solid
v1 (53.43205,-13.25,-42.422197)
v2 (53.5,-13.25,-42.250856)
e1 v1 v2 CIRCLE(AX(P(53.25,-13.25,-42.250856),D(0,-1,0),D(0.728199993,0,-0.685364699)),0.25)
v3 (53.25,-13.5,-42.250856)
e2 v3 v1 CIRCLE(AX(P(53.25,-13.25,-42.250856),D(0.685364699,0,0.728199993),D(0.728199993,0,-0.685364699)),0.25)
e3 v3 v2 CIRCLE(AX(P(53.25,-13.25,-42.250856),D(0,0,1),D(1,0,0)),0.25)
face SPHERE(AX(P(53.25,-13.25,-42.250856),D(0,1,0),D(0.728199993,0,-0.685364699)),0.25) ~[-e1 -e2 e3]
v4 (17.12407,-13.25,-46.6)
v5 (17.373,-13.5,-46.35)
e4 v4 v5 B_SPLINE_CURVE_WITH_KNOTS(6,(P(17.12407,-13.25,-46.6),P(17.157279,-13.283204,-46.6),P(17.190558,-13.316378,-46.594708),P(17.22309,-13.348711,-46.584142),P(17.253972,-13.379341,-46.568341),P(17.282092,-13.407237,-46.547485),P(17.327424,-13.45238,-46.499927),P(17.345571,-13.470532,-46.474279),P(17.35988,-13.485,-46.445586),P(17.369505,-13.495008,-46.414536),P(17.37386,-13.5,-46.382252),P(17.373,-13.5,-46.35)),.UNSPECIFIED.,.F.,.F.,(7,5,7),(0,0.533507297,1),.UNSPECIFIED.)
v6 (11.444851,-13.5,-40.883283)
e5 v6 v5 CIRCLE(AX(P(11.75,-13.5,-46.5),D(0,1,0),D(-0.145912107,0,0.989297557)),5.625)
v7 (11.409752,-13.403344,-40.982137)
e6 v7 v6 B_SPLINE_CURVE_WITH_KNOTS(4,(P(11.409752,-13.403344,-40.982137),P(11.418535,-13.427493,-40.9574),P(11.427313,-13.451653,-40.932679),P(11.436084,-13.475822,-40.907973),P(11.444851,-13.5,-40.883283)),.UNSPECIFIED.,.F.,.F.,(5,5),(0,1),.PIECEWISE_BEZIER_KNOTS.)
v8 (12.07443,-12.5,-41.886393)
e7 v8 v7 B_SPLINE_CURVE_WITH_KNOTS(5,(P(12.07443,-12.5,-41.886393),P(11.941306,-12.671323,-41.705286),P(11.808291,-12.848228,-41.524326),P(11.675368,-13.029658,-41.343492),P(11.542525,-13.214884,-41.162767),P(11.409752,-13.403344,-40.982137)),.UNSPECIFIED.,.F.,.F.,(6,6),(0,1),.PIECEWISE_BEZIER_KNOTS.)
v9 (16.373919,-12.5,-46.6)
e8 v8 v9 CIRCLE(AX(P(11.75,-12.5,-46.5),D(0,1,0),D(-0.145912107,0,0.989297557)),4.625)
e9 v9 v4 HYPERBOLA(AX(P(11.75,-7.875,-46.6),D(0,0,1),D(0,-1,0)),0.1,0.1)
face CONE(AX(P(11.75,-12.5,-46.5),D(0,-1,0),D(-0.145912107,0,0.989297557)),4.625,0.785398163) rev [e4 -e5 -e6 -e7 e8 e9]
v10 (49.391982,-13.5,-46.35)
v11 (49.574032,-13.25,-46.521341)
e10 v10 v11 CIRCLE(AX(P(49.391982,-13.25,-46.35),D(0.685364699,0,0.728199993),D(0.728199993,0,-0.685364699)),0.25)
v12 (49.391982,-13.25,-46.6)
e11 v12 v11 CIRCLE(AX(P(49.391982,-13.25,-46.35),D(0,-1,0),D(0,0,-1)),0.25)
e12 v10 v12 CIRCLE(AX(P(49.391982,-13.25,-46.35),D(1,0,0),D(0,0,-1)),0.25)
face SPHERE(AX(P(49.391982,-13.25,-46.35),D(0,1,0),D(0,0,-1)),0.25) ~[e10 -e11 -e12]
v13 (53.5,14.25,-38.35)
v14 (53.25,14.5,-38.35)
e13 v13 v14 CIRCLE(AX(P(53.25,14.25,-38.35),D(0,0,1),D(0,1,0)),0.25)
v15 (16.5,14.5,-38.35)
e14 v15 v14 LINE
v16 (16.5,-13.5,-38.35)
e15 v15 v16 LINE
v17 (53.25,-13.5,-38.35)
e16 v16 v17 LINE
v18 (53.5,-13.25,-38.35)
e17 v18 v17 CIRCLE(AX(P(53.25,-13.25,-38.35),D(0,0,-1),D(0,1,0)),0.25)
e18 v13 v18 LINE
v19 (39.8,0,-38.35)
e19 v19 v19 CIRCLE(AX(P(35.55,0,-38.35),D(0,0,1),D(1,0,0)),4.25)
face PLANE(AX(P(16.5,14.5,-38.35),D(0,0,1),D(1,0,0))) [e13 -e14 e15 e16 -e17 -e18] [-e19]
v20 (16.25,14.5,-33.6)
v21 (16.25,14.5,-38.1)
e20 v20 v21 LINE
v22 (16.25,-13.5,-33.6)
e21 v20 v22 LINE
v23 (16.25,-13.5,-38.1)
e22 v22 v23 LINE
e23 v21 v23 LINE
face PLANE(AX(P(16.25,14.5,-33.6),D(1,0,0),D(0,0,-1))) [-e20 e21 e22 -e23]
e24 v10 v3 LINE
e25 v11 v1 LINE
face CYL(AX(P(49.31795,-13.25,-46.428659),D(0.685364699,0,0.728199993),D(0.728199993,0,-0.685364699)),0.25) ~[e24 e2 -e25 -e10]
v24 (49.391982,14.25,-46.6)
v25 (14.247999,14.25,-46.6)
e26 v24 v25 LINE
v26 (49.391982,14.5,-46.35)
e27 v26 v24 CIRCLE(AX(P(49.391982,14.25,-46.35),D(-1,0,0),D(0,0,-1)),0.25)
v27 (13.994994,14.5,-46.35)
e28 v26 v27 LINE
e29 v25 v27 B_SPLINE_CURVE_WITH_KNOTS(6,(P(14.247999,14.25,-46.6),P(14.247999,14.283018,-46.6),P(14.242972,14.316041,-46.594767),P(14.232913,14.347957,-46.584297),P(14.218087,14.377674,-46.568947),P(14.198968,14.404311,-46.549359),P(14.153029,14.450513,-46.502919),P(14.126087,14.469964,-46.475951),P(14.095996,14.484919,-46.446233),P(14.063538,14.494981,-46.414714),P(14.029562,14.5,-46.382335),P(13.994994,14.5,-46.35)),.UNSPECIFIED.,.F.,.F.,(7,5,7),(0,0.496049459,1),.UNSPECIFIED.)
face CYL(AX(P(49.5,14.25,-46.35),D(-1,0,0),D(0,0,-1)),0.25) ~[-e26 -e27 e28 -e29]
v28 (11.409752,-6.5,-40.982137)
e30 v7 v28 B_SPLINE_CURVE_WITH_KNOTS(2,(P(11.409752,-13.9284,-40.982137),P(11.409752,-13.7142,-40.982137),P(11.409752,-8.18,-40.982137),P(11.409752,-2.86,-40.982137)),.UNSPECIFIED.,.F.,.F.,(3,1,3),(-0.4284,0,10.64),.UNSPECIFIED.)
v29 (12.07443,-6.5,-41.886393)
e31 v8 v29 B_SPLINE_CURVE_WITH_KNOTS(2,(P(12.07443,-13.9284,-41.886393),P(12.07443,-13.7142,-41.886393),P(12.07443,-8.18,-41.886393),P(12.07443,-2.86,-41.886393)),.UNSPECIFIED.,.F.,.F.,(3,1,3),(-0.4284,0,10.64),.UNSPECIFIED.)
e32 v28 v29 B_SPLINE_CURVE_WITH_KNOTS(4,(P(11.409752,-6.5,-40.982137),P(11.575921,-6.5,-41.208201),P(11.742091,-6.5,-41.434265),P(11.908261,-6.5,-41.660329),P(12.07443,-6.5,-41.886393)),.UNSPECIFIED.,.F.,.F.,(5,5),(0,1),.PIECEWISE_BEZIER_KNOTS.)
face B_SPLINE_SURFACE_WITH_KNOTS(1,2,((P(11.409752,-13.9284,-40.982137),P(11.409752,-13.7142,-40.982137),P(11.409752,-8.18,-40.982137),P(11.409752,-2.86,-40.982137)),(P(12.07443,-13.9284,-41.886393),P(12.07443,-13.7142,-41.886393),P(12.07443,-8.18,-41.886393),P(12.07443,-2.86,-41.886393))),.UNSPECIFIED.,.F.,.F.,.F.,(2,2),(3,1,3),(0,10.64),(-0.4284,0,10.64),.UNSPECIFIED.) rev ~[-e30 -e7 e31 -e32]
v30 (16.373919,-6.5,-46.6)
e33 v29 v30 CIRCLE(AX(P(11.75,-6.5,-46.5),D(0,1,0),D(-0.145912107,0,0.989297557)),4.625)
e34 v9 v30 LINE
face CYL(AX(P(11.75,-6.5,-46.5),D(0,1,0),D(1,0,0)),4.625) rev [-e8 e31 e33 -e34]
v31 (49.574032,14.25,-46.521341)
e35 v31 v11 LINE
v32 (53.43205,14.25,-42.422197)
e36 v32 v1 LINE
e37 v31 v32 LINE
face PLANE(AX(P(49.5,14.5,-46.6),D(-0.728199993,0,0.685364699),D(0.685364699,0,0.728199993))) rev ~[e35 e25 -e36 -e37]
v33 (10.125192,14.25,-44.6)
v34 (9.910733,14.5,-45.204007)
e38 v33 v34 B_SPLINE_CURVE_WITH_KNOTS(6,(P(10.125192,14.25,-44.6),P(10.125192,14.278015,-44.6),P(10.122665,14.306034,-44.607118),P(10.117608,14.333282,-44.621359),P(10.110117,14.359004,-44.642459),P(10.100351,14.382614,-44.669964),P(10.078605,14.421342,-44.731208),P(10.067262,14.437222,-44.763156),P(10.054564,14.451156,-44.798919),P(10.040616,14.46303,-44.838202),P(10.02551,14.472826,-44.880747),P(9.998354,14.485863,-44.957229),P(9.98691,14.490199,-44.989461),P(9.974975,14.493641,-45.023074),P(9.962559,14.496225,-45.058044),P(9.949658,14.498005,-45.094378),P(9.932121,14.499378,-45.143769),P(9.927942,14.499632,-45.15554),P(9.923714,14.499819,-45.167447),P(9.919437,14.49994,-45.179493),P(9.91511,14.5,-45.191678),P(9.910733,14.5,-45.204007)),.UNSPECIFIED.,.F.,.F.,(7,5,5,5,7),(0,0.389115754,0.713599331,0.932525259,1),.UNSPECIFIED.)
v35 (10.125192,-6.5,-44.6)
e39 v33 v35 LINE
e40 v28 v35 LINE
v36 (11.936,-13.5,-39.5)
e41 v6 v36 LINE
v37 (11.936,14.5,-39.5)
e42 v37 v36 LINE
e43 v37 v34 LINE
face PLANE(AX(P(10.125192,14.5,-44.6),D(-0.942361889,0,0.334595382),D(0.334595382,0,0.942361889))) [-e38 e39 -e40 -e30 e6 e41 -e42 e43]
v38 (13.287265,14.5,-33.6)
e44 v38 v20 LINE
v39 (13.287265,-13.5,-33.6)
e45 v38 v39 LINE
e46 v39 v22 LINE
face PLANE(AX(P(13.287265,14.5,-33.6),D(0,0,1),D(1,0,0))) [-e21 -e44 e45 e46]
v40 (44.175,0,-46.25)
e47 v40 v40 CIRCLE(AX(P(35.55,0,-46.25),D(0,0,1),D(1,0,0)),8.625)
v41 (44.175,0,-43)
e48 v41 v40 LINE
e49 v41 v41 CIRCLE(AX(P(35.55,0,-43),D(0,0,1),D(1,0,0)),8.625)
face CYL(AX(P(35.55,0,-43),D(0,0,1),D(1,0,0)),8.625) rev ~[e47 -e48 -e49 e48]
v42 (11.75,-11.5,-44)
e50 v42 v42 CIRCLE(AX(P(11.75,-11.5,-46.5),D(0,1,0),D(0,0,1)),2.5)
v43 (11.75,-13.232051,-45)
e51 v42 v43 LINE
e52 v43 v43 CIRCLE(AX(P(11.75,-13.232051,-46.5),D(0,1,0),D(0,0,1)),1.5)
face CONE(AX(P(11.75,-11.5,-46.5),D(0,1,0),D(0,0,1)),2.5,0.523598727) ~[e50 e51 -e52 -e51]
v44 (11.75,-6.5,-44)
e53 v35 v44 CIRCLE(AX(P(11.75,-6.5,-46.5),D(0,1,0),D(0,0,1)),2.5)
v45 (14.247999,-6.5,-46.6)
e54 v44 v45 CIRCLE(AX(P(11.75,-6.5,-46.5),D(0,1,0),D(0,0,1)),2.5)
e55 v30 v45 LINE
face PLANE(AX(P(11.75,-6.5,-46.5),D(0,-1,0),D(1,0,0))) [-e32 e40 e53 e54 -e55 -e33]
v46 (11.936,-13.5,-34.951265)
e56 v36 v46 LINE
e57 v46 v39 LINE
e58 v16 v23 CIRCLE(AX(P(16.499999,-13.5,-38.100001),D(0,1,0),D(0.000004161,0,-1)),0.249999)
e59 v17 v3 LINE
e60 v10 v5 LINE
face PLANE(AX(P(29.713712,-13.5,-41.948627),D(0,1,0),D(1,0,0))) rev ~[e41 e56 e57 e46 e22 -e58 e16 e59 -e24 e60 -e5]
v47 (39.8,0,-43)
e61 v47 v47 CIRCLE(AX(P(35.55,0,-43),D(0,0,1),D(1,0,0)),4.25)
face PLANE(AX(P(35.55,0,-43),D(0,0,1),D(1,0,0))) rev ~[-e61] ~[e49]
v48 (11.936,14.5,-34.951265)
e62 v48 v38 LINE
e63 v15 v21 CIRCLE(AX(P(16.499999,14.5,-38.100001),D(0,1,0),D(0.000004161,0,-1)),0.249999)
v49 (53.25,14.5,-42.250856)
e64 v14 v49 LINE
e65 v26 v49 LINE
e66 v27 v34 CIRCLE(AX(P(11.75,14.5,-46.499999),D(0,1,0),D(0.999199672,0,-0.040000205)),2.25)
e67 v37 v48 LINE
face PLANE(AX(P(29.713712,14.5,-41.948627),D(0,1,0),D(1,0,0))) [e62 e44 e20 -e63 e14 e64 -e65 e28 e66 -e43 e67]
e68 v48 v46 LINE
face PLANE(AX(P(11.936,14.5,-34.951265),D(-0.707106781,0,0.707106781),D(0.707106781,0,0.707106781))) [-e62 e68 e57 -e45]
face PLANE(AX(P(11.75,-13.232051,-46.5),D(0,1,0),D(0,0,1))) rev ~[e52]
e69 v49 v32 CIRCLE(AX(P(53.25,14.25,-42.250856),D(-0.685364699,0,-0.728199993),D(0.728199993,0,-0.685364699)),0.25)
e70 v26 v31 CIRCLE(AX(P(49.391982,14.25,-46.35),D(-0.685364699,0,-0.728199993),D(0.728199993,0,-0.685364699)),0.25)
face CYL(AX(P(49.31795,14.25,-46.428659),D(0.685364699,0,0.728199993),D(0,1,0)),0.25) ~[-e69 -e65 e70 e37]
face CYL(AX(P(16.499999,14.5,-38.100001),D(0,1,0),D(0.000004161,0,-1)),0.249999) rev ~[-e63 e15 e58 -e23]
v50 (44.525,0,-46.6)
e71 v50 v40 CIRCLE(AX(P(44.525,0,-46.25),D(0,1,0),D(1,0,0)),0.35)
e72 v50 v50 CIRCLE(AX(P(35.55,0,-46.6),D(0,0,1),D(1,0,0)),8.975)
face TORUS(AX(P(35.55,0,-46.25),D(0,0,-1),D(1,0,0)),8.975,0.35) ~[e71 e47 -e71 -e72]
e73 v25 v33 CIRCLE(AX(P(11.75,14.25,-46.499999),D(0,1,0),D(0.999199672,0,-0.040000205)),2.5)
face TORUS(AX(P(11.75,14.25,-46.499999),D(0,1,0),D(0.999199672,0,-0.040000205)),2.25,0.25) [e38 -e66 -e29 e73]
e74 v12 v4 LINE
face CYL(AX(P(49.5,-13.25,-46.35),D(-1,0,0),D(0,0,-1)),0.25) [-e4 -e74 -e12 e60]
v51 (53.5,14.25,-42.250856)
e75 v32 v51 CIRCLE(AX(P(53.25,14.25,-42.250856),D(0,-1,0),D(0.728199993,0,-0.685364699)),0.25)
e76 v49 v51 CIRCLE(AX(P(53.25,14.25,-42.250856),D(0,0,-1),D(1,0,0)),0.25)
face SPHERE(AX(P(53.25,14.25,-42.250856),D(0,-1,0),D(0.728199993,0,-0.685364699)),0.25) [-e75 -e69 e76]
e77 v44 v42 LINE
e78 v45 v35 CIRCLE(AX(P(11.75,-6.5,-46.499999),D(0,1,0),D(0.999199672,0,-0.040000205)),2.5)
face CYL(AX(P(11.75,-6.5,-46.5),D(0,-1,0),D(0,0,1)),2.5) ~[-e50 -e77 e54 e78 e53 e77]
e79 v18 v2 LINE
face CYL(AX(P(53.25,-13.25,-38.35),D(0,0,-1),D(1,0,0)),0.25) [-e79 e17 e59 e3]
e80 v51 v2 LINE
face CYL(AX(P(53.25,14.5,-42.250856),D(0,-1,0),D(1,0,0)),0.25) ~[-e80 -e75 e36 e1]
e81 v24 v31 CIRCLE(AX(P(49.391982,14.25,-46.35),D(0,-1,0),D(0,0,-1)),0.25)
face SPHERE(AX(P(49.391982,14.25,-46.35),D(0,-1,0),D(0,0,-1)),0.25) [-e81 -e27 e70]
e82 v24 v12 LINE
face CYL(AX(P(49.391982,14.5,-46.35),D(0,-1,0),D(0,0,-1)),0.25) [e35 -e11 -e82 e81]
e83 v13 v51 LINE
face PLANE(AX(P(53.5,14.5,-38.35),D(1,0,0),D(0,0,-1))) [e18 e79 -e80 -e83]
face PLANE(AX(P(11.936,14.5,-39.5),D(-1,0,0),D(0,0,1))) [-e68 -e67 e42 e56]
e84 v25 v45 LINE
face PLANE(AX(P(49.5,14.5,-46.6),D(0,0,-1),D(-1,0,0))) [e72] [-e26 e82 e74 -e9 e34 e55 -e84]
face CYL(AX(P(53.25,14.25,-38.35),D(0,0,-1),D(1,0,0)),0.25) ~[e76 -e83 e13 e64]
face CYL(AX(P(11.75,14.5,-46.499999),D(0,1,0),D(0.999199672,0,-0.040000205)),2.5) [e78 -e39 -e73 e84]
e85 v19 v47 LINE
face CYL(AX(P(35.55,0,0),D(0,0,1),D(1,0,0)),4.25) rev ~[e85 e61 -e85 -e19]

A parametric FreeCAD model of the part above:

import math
import FreeCAD as App
import Part
import Sketcher
Q = App.Units.Quantity


def edges_at(feature, points):
    """Names of the edges that pass closest to the given points."""
    edges = feature.Shape.Edges
    near = lambda p: min(range(len(edges)), key=lambda i: edges[i].distToShape(Part.Vertex(*p))[0])
    return sorted({f"Edge{near(p) + 1}" for p in points})

doc = App.newDocument("Part")
body = doc.addObject("PartDesign::Body", "Body")

# Sketch on XZ plane
sketch1 = doc.addObject("Sketcher::SketchObject", "Sketch")
body.addObject(sketch1)
sketch1.AttachmentSupport = (doc.XZ_Plane, [""])
sketch1.MapMode = "FlatFace"
sketch1.AttachmentOffset = App.Placement(App.Vector(0, 0, -14.5), App.Rotation())
sketch1.addGeometry([
    Part.LineSegment(App.Vector(16.5, -38.35, 0), App.Vector(53.5, -38.35, 0)),  # 0
    Part.LineSegment(App.Vector(53.5, -38.35, 0), App.Vector(53.5, -42.35, 0)),  # 1
    Part.LineSegment(App.Vector(53.5, -42.35, 0), App.Vector(49.5, -46.6, 0)),  # 2
    Part.LineSegment(App.Vector(49.5, -46.6, 0), App.Vector(14.25, -46.6, 0)),  # 3
    Part.ArcOfCircle(Part.Circle(App.Vector(11.75, -46.5, 0), App.Vector(0, 0, 1), 2.5), math.radians(131), math.radians(358)),  # 4
    Part.LineSegment(App.Vector(10.13, -44.6, 0), App.Vector(11.94, -39.5, 0)),  # 5
    Part.LineSegment(App.Vector(11.94, -39.5, 0), App.Vector(11.94, -34.95, 0)),  # 6
    Part.LineSegment(App.Vector(11.94, -34.95, 0), App.Vector(13.29, -33.6, 0)),  # 7
    Part.LineSegment(App.Vector(13.29, -33.6, 0), App.Vector(16.25, -33.6, 0)),  # 8
    Part.LineSegment(App.Vector(16.25, -33.6, 0), App.Vector(16.25, -38.1, 0)),  # 9
    Part.ArcOfCircle(Part.Circle(App.Vector(16.5, -38.1, 0), App.Vector(0, 0, 1), 0.25), math.radians(180), math.radians(270)),  # 10
], False)
sketch1.addConstraint([
    Sketcher.Constraint("Coincident", 0, 2, 1, 1),
    Sketcher.Constraint("Coincident", 1, 2, 2, 1),
    Sketcher.Constraint("Coincident", 2, 2, 3, 1),
    Sketcher.Constraint("Coincident", 3, 2, 4, 2),
    Sketcher.Constraint("Coincident", 4, 1, 5, 1),
    Sketcher.Constraint("Coincident", 5, 2, 6, 1),
    Sketcher.Constraint("Coincident", 6, 2, 7, 1),
    Sketcher.Constraint("Coincident", 7, 2, 8, 1),
    Sketcher.Constraint("Coincident", 8, 2, 9, 1),
    Sketcher.Constraint("Coincident", 9, 2, 10, 1),
    Sketcher.Constraint("Coincident", 10, 2, 0, 1),
    Sketcher.Constraint("Horizontal", 0),
    Sketcher.Constraint("Vertical", 1),
    Sketcher.Constraint("Horizontal", 3),
    Sketcher.Constraint("Vertical", 6),
    Sketcher.Constraint("Horizontal", 8),
    Sketcher.Constraint("Vertical", 9),
    Sketcher.Constraint("Horizontal", 10, 3, 9, 2),
    Sketcher.Constraint("Radius", 4, Q("2.5 mm")),
    Sketcher.Constraint("DistanceX", 0, 1, 0, 2, Q("37 mm")),
    Sketcher.Constraint("DistanceY", 1, 2, 1, 1, Q("4 mm")),
    Sketcher.Constraint("Angle", 7, Q("45 deg")),
    Sketcher.Constraint("Radius", 10, Q("0.249999 mm")),
    Sketcher.Constraint("DistanceY", 9, 2, 9, 1, Q("4.5 mm")),
    Sketcher.Constraint("DistanceX", 10, 3, 0, 2, Q("37.000001 mm")),
    Sketcher.Constraint("DistanceX", 2, 2, 1, 2, Q("4 mm")),
    Sketcher.Constraint("DistanceY", 3, 2, 4, 1, Q("2 mm")),
    Sketcher.Constraint("DistanceY", 4, 3, 5, 2, Q("6.999999 mm")),
    Sketcher.Constraint("DistanceY", 4, 1, 7, 2, Q("11 mm")),
    Sketcher.Constraint("DistanceY", 4, 3, -1, 1, Q("46.499999 mm")),
    Sketcher.Constraint("DistanceX", -1, 1, 10, 3, Q("16.499999 mm")),
    Sketcher.Constraint("DistanceY", 10, 3, -1, 1, Q("38.100001 mm")),
    Sketcher.Constraint("DistanceX", 3, 2, 3, 1, Q("35.252001 mm")),
    Sketcher.Constraint("DistanceX", -1, 1, 5, 2, Q("11.936 mm")),
    Sketcher.Constraint("DistanceX", 8, 1, 8, 2, Q("2.962735 mm")),
])
pad1 = doc.addObject("PartDesign::Pad", "Pad")
body.addObject(pad1)
pad1.Profile = sketch1
pad1.Length = 28

# Sketch on XZ plane
sketch2 = doc.addObject("Sketcher::SketchObject", "Sketch001")
body.addObject(sketch2)
sketch2.AttachmentSupport = (doc.XZ_Plane, [""])
sketch2.MapMode = "FlatFace"
sketch2.AttachmentOffset = App.Placement(App.Vector(0, 0, 6.5), App.Rotation())
sketch2.addGeometry(Part.Circle(App.Vector(11.8, -46.5, 0), App.Vector(0, 0, 1), 4.6), False)
sketch2.addConstraint([
    Sketcher.Constraint("Diameter", 0, Q("9.25 mm")),
    Sketcher.Constraint("DistanceY", 0, 3, -1, 1, Q("46.5 mm")),
    Sketcher.Constraint("DistanceX", -1, 1, 0, 3, Q("11.75 mm")),
])
pocket1 = doc.addObject("PartDesign::Pocket", "Pocket")
body.addObject(pocket1)
pocket1.Profile = sketch2
pocket1.Length = 7
pocket1.Reversed = True

# Sketch on YZ plane
sketch3 = doc.addObject("Sketcher::SketchObject", "Sketch002")
body.addObject(sketch3)
sketch3.AttachmentSupport = (doc.YZ_Plane, [""])
sketch3.MapMode = "FlatFace"
sketch3.AttachmentOffset = App.Placement(App.Vector(0, 0, 11.75), App.Rotation())
sketch3.addGeometry([
    Part.LineSegment(App.Vector(-13.2, -45, 0), App.Vector(-13.2, -46.5, 0)),  # 0
    Part.LineSegment(App.Vector(-13.2, -46.5, 0), App.Vector(-6.5, -46.5, 0)),  # 1
    Part.LineSegment(App.Vector(-6.5, -46.5, 0), App.Vector(-6.5, -44, 0)),  # 2
    Part.LineSegment(App.Vector(-6.5, -44, 0), App.Vector(-11.5, -44, 0)),  # 3
    Part.LineSegment(App.Vector(-11.5, -44, 0), App.Vector(-13.2, -45, 0)),  # 4
], False)
sketch3.addGeometry(Part.LineSegment(App.Vector(-13.2, -46.5, 0), App.Vector(-6.5, -46.5, 0)), True)  # axis
sketch3.addConstraint([
    Sketcher.Constraint("Coincident", 0, 2, 1, 1),
    Sketcher.Constraint("Coincident", 1, 2, 2, 1),
    Sketcher.Constraint("Coincident", 2, 2, 3, 1),
    Sketcher.Constraint("Coincident", 3, 2, 4, 1),
    Sketcher.Constraint("Coincident", 4, 2, 0, 1),
    Sketcher.Constraint("Vertical", 0),
    Sketcher.Constraint("Horizontal", 1),
    Sketcher.Constraint("Vertical", 2),
    Sketcher.Constraint("Horizontal", 3),
    Sketcher.Constraint("Horizontal", 5),
    Sketcher.Constraint("Coincident", 5, 1, 0, 2),
    Sketcher.Constraint("Vertical", 2, 2, 5, 2),
    Sketcher.Constraint("DistanceX", 3, 2, 3, 1, Q("5 mm")),
    Sketcher.Constraint("Angle", 4, Q("-150.000003 deg")),
    Sketcher.Constraint("Distance", 4, Q("2 mm")),
    Sketcher.Constraint("DistanceY", 0, 2, 0, 1, Q("1.5 mm")),
    Sketcher.Constraint("DistanceY", 2, 2, -1, 1, Q("44 mm")),
    Sketcher.Constraint("DistanceX", 1, 2, -1, 1, Q("6.5 mm")),
])
revolution = doc.addObject("PartDesign::Revolution", "Revolution")
body.addObject(revolution)
revolution.Profile = sketch3
revolution.ReferenceAxis = (sketch3, ["Axis0"])
revolution.Angle = 360

# Sketch on XY plane
sketch4 = doc.addObject("Sketcher::SketchObject", "Sketch003")
body.addObject(sketch4)
sketch4.AttachmentSupport = (doc.XY_Plane, [""])
sketch4.MapMode = "FlatFace"
sketch4.addGeometry(Part.Circle(App.Vector(35.5, 0, 0), App.Vector(0, 0, 1), 4.2), False)
sketch4.addConstraint([
    Sketcher.Constraint("PointOnObject", 0, 3, -1),
    Sketcher.Constraint("Diameter", 0, Q("8.5 mm")),
    Sketcher.Constraint("DistanceX", -1, 1, 0, 3, Q("35.55 mm")),
])
pocket2 = doc.addObject("PartDesign::Pocket", "Pocket001")
body.addObject(pocket2)
pocket2.Profile = sketch4
pocket2.Type = "ThroughAll"

# Sketch on XY plane
sketch5 = doc.addObject("Sketcher::SketchObject", "Sketch004")
body.addObject(sketch5)
sketch5.AttachmentSupport = (doc.XY_Plane, [""])
sketch5.MapMode = "FlatFace"
sketch5.AttachmentOffset = App.Placement(App.Vector(0, 0, -43), App.Rotation())
sketch5.addGeometry(Part.Circle(App.Vector(36, 0, 0), App.Vector(0, 0, 1), 9), False)
sketch5.addConstraint([
    Sketcher.Constraint("PointOnObject", 0, 3, -1),
    Sketcher.Constraint("Diameter", 0, Q("17.25 mm")),
    Sketcher.Constraint("DistanceX", -1, 1, 0, 3, Q("35.55 mm")),
])
pocket3 = doc.addObject("PartDesign::Pocket", "Pocket002")
body.addObject(pocket3)
pocket3.Profile = sketch5
pocket3.Length = 4
doc.recompute()

chamfer = doc.addObject("PartDesign::Chamfer", "Chamfer")
body.addObject(chamfer)
chamfer.Base = (pocket3, edges_at(pocket3, [(14.81, -13.5, -43.032), (11.075, -10, -41.924)]))
chamfer.Size = 1
doc.recompute()

fillet = doc.addObject("PartDesign::Fillet", "Fillet")
body.addObject(fillet)
fillet.Base = (chamfer, edges_at(chamfer, [
    (33.437, -13.5, -46.6),
    (51.5, -13.5, -44.475),
    (53.5, -13.5, -40.35),
    (53.5, 14.5, -40.35),
    (53.5, 0.5, -42.35),
    (51.5, 14.5, -44.475),
    (49.5, 0.5, -46.6),
    (31.874, 14.5, -46.6),
    (10.659, 14.5, -48.749),
]))
fillet.Radius = 0.25
doc.recompute()

fillet2 = doc.addObject("PartDesign::Fillet", "Fillet001")
body.addObject(fillet2)
fillet2.Base = (fillet, edges_at(fillet, [(26.925, 0, -46.6)]))
fillet2.Radius = 0.35

doc.recompute()
